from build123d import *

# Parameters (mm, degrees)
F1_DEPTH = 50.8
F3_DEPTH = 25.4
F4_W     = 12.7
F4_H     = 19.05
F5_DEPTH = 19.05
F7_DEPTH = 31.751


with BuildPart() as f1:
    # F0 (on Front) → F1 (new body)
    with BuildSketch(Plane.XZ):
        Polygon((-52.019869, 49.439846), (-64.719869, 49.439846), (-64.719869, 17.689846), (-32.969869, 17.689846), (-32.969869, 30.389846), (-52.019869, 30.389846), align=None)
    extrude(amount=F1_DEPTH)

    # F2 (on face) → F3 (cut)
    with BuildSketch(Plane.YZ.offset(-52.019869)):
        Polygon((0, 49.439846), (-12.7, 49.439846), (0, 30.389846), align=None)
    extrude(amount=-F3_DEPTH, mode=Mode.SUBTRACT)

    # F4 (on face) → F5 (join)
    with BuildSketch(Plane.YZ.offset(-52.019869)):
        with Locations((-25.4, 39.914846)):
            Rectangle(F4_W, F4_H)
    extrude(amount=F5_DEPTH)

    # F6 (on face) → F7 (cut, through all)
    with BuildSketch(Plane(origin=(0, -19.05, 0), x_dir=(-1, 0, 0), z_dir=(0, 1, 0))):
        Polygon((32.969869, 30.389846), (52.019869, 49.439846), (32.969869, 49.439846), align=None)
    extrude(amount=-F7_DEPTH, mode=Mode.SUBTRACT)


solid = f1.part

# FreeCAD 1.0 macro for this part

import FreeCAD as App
import Part
import Sketcher

V = App.Vector
Q = App.Units.Quantity

doc = App.newDocument("Part")
body = doc.addObject("PartDesign::Body", "Body")

# Sketch on XZ plane
sketch1 = body.newObject("Sketcher::SketchObject", "Sketch")
sketch1.AttachmentSupport = (doc.getObject("XZ_Plane"), [""])
sketch1.MapMode = "FlatFace"
sketch1.addGeometry(Part.LineSegment(V(-52, 49, 0), V(-65, 49, 0)), False)
sketch1.addGeometry(Part.LineSegment(V(-65, 49, 0), V(-65, 18, 0)), False)
sketch1.addGeometry(Part.LineSegment(V(-65, 18, 0), V(-33, 18, 0)), False)
sketch1.addGeometry(Part.LineSegment(V(-33, 18, 0), V(-33, 30, 0)), False)
sketch1.addGeometry(Part.LineSegment(V(-33, 30, 0), V(-52, 30, 0)), False)
sketch1.addGeometry(Part.LineSegment(V(-52, 30, 0), V(-52, 49, 0)), False)
sketch1.addConstraint(Sketcher.Constraint("Coincident", 0, 2, 1, 1))
sketch1.addConstraint(Sketcher.Constraint("Coincident", 1, 2, 2, 1))
sketch1.addConstraint(Sketcher.Constraint("Coincident", 2, 2, 3, 1))
sketch1.addConstraint(Sketcher.Constraint("Coincident", 3, 2, 4, 1))
sketch1.addConstraint(Sketcher.Constraint("Coincident", 4, 2, 5, 1))
sketch1.addConstraint(Sketcher.Constraint("Coincident", 5, 2, 0, 1))
sketch1.addConstraint(Sketcher.Constraint("Horizontal", 0))
sketch1.addConstraint(Sketcher.Constraint("Vertical", 1))
sketch1.addConstraint(Sketcher.Constraint("Horizontal", 2))
sketch1.addConstraint(Sketcher.Constraint("Vertical", 3))
sketch1.addConstraint(Sketcher.Constraint("Horizontal", 4))
sketch1.addConstraint(Sketcher.Constraint("Vertical", 5))
sketch1.addConstraint(Sketcher.Constraint("Equal", 2, 1))
sketch1.addConstraint(Sketcher.Constraint("Equal", 0, 3))
sketch1.addConstraint(Sketcher.Constraint("DistanceX", 0, 2, 0, 1, Q("0.5 in")))
sketch1.addConstraint(Sketcher.Constraint("DistanceX", 2, 1, 2, 2, Q("1.25 in")))
sketch1.addConstraint(Sketcher.Constraint("DistanceX", 0, 2, -1, 1, 64.719869))
sketch1.addConstraint(Sketcher.Constraint("DistanceY", -1, 1, 0, 2, 49.439846))
pad1 = body.newObject("PartDesign::Pad", "Pad")
pad1.Profile = sketch1
pad1.Length = Q("2 in")

# Sketch on YZ plane
sketch2 = body.newObject("Sketcher::SketchObject", "Sketch001")
sketch2.AttachmentSupport = (doc.getObject("YZ_Plane"), [""])
sketch2.MapMode = "FlatFace"
sketch2.AttachmentOffset = App.Placement(V(0, 0, -52.019869), App.Rotation())
sketch2.addGeometry(Part.LineSegment(V(0, 49, 0), V(-13, 49, 0)), False)
sketch2.addGeometry(Part.LineSegment(V(-13, 49, 0), V(0, 30, 0)), False)
sketch2.addGeometry(Part.LineSegment(V(0, 30, 0), V(0, 49, 0)), False)
sketch2.addConstraint(Sketcher.Constraint("Coincident", 0, 2, 1, 1))
sketch2.addConstraint(Sketcher.Constraint("Coincident", 1, 2, 2, 1))
sketch2.addConstraint(Sketcher.Constraint("Coincident", 2, 2, 0, 1))
sketch2.addConstraint(Sketcher.Constraint("Horizontal", 0))
sketch2.addConstraint(Sketcher.Constraint("Vertical", 2))
sketch2.addConstraint(Sketcher.Constraint("PointOnObject", 1, 2, -2))
sketch2.addConstraint(Sketcher.Constraint("DistanceX", 0, 2, 0, 1, Q("0.5 in")))
sketch2.addConstraint(Sketcher.Constraint("DistanceY", 2, 1, 2, 2, Q("0.75 in")))
sketch2.addConstraint(Sketcher.Constraint("DistanceY", -1, 1, 0, 2, 49.439846))
pocket1 = body.newObject("PartDesign::Pocket", "Pocket")
pocket1.Profile = sketch2
pocket1.Length = Q("1 in")

# Sketch on YZ plane
sketch3 = body.newObject("Sketcher::SketchObject", "Sketch002")
sketch3.AttachmentSupport = (doc.getObject("YZ_Plane"), [""])
sketch3.MapMode = "FlatFace"
sketch3.AttachmentOffset = App.Placement(V(0, 0, -52.019869), App.Rotation())
sketch3.addGeometry(Part.LineSegment(V(-32, 49, 0), V(-32, 30, 0)), False)
sketch3.addGeometry(Part.LineSegment(V(-32, 30, 0), V(-19, 30, 0)), False)
sketch3.addGeometry(Part.LineSegment(V(-19, 30, 0), V(-19, 49, 0)), False)
sketch3.addGeometry(Part.LineSegment(V(-19, 49, 0), V(-32, 49, 0)), False)
sketch3.addConstraint(Sketcher.Constraint("Coincident", 0, 2, 1, 1))
sketch3.addConstraint(Sketcher.Constraint("Coincident", 1, 2, 2, 1))
sketch3.addConstraint(Sketcher.Constraint("Coincident", 2, 2, 3, 1))
sketch3.addConstraint(Sketcher.Constraint("Coincident", 3, 2, 0, 1))
sketch3.addConstraint(Sketcher.Constraint("Vertical", 0))
sketch3.addConstraint(Sketcher.Constraint("Horizontal", 1))
sketch3.addConstraint(Sketcher.Constraint("Vertical", 2))
sketch3.addConstraint(Sketcher.Constraint("Horizontal", 3))
sketch3.addConstraint(Sketcher.Constraint("DistanceX", 1, 1, 1, 2, Q("0.5 in")))
sketch3.addConstraint(Sketcher.Constraint("DistanceY", 0, 2, 0, 1, Q("0.75 in")))
sketch3.addConstraint(Sketcher.Constraint("DistanceX", 0, 2, -1, 1, Q("1.25 in")))
sketch3.addConstraint(Sketcher.Constraint("DistanceY", -1, 1, 0, 2, 30.389846))
pad2 = body.newObject("PartDesign::Pad", "Pad001")
pad2.Profile = sketch3
pad2.Length = Q("0.75 in")

# Sketch on XZ plane
sketch4 = body.newObject("Sketcher::SketchObject", "Sketch003")
sketch4.AttachmentSupport = (doc.getObject("XZ_Plane"), [""])
sketch4.MapMode = "FlatFace"
sketch4.AttachmentOffset = App.Placement(V(0, 0, 0.75 * 25.4), App.Rotation())
sketch4.addGeometry(Part.LineSegment(V(-33, 30, 0), V(-52, 49, 0)), False)
sketch4.addGeometry(Part.LineSegment(V(-52, 49, 0), V(-33, 49, 0)), False)
sketch4.addGeometry(Part.LineSegment(V(-33, 49, 0), V(-33, 30, 0)), False)
sketch4.addConstraint(Sketcher.Constraint("Coincident", 0, 2, 1, 1))
sketch4.addConstraint(Sketcher.Constraint("Coincident", 1, 2, 2, 1))
sketch4.addConstraint(Sketcher.Constraint("Coincident", 2, 2, 0, 1))
sketch4.addConstraint(Sketcher.Constraint("Horizontal", 1))
sketch4.addConstraint(Sketcher.Constraint("Vertical", 2))
sketch4.addConstraint(Sketcher.Constraint("Equal", 1, 2))
sketch4.addConstraint(Sketcher.Constraint("DistanceX", 1, 1, 1, 2, Q("0.75 in")))
sketch4.addConstraint(Sketcher.Constraint("DistanceX", 0, 2, -1, 1, 52.019869))
sketch4.addConstraint(Sketcher.Constraint("DistanceY", -1, 1, 0, 2, 49.439846))
pocket2 = body.newObject("PartDesign::Pocket", "Pocket001")
pocket2.Profile = sketch4
pocket2.Type = "ThroughAll"
pocket2.Reversed = True

doc.recompute()
